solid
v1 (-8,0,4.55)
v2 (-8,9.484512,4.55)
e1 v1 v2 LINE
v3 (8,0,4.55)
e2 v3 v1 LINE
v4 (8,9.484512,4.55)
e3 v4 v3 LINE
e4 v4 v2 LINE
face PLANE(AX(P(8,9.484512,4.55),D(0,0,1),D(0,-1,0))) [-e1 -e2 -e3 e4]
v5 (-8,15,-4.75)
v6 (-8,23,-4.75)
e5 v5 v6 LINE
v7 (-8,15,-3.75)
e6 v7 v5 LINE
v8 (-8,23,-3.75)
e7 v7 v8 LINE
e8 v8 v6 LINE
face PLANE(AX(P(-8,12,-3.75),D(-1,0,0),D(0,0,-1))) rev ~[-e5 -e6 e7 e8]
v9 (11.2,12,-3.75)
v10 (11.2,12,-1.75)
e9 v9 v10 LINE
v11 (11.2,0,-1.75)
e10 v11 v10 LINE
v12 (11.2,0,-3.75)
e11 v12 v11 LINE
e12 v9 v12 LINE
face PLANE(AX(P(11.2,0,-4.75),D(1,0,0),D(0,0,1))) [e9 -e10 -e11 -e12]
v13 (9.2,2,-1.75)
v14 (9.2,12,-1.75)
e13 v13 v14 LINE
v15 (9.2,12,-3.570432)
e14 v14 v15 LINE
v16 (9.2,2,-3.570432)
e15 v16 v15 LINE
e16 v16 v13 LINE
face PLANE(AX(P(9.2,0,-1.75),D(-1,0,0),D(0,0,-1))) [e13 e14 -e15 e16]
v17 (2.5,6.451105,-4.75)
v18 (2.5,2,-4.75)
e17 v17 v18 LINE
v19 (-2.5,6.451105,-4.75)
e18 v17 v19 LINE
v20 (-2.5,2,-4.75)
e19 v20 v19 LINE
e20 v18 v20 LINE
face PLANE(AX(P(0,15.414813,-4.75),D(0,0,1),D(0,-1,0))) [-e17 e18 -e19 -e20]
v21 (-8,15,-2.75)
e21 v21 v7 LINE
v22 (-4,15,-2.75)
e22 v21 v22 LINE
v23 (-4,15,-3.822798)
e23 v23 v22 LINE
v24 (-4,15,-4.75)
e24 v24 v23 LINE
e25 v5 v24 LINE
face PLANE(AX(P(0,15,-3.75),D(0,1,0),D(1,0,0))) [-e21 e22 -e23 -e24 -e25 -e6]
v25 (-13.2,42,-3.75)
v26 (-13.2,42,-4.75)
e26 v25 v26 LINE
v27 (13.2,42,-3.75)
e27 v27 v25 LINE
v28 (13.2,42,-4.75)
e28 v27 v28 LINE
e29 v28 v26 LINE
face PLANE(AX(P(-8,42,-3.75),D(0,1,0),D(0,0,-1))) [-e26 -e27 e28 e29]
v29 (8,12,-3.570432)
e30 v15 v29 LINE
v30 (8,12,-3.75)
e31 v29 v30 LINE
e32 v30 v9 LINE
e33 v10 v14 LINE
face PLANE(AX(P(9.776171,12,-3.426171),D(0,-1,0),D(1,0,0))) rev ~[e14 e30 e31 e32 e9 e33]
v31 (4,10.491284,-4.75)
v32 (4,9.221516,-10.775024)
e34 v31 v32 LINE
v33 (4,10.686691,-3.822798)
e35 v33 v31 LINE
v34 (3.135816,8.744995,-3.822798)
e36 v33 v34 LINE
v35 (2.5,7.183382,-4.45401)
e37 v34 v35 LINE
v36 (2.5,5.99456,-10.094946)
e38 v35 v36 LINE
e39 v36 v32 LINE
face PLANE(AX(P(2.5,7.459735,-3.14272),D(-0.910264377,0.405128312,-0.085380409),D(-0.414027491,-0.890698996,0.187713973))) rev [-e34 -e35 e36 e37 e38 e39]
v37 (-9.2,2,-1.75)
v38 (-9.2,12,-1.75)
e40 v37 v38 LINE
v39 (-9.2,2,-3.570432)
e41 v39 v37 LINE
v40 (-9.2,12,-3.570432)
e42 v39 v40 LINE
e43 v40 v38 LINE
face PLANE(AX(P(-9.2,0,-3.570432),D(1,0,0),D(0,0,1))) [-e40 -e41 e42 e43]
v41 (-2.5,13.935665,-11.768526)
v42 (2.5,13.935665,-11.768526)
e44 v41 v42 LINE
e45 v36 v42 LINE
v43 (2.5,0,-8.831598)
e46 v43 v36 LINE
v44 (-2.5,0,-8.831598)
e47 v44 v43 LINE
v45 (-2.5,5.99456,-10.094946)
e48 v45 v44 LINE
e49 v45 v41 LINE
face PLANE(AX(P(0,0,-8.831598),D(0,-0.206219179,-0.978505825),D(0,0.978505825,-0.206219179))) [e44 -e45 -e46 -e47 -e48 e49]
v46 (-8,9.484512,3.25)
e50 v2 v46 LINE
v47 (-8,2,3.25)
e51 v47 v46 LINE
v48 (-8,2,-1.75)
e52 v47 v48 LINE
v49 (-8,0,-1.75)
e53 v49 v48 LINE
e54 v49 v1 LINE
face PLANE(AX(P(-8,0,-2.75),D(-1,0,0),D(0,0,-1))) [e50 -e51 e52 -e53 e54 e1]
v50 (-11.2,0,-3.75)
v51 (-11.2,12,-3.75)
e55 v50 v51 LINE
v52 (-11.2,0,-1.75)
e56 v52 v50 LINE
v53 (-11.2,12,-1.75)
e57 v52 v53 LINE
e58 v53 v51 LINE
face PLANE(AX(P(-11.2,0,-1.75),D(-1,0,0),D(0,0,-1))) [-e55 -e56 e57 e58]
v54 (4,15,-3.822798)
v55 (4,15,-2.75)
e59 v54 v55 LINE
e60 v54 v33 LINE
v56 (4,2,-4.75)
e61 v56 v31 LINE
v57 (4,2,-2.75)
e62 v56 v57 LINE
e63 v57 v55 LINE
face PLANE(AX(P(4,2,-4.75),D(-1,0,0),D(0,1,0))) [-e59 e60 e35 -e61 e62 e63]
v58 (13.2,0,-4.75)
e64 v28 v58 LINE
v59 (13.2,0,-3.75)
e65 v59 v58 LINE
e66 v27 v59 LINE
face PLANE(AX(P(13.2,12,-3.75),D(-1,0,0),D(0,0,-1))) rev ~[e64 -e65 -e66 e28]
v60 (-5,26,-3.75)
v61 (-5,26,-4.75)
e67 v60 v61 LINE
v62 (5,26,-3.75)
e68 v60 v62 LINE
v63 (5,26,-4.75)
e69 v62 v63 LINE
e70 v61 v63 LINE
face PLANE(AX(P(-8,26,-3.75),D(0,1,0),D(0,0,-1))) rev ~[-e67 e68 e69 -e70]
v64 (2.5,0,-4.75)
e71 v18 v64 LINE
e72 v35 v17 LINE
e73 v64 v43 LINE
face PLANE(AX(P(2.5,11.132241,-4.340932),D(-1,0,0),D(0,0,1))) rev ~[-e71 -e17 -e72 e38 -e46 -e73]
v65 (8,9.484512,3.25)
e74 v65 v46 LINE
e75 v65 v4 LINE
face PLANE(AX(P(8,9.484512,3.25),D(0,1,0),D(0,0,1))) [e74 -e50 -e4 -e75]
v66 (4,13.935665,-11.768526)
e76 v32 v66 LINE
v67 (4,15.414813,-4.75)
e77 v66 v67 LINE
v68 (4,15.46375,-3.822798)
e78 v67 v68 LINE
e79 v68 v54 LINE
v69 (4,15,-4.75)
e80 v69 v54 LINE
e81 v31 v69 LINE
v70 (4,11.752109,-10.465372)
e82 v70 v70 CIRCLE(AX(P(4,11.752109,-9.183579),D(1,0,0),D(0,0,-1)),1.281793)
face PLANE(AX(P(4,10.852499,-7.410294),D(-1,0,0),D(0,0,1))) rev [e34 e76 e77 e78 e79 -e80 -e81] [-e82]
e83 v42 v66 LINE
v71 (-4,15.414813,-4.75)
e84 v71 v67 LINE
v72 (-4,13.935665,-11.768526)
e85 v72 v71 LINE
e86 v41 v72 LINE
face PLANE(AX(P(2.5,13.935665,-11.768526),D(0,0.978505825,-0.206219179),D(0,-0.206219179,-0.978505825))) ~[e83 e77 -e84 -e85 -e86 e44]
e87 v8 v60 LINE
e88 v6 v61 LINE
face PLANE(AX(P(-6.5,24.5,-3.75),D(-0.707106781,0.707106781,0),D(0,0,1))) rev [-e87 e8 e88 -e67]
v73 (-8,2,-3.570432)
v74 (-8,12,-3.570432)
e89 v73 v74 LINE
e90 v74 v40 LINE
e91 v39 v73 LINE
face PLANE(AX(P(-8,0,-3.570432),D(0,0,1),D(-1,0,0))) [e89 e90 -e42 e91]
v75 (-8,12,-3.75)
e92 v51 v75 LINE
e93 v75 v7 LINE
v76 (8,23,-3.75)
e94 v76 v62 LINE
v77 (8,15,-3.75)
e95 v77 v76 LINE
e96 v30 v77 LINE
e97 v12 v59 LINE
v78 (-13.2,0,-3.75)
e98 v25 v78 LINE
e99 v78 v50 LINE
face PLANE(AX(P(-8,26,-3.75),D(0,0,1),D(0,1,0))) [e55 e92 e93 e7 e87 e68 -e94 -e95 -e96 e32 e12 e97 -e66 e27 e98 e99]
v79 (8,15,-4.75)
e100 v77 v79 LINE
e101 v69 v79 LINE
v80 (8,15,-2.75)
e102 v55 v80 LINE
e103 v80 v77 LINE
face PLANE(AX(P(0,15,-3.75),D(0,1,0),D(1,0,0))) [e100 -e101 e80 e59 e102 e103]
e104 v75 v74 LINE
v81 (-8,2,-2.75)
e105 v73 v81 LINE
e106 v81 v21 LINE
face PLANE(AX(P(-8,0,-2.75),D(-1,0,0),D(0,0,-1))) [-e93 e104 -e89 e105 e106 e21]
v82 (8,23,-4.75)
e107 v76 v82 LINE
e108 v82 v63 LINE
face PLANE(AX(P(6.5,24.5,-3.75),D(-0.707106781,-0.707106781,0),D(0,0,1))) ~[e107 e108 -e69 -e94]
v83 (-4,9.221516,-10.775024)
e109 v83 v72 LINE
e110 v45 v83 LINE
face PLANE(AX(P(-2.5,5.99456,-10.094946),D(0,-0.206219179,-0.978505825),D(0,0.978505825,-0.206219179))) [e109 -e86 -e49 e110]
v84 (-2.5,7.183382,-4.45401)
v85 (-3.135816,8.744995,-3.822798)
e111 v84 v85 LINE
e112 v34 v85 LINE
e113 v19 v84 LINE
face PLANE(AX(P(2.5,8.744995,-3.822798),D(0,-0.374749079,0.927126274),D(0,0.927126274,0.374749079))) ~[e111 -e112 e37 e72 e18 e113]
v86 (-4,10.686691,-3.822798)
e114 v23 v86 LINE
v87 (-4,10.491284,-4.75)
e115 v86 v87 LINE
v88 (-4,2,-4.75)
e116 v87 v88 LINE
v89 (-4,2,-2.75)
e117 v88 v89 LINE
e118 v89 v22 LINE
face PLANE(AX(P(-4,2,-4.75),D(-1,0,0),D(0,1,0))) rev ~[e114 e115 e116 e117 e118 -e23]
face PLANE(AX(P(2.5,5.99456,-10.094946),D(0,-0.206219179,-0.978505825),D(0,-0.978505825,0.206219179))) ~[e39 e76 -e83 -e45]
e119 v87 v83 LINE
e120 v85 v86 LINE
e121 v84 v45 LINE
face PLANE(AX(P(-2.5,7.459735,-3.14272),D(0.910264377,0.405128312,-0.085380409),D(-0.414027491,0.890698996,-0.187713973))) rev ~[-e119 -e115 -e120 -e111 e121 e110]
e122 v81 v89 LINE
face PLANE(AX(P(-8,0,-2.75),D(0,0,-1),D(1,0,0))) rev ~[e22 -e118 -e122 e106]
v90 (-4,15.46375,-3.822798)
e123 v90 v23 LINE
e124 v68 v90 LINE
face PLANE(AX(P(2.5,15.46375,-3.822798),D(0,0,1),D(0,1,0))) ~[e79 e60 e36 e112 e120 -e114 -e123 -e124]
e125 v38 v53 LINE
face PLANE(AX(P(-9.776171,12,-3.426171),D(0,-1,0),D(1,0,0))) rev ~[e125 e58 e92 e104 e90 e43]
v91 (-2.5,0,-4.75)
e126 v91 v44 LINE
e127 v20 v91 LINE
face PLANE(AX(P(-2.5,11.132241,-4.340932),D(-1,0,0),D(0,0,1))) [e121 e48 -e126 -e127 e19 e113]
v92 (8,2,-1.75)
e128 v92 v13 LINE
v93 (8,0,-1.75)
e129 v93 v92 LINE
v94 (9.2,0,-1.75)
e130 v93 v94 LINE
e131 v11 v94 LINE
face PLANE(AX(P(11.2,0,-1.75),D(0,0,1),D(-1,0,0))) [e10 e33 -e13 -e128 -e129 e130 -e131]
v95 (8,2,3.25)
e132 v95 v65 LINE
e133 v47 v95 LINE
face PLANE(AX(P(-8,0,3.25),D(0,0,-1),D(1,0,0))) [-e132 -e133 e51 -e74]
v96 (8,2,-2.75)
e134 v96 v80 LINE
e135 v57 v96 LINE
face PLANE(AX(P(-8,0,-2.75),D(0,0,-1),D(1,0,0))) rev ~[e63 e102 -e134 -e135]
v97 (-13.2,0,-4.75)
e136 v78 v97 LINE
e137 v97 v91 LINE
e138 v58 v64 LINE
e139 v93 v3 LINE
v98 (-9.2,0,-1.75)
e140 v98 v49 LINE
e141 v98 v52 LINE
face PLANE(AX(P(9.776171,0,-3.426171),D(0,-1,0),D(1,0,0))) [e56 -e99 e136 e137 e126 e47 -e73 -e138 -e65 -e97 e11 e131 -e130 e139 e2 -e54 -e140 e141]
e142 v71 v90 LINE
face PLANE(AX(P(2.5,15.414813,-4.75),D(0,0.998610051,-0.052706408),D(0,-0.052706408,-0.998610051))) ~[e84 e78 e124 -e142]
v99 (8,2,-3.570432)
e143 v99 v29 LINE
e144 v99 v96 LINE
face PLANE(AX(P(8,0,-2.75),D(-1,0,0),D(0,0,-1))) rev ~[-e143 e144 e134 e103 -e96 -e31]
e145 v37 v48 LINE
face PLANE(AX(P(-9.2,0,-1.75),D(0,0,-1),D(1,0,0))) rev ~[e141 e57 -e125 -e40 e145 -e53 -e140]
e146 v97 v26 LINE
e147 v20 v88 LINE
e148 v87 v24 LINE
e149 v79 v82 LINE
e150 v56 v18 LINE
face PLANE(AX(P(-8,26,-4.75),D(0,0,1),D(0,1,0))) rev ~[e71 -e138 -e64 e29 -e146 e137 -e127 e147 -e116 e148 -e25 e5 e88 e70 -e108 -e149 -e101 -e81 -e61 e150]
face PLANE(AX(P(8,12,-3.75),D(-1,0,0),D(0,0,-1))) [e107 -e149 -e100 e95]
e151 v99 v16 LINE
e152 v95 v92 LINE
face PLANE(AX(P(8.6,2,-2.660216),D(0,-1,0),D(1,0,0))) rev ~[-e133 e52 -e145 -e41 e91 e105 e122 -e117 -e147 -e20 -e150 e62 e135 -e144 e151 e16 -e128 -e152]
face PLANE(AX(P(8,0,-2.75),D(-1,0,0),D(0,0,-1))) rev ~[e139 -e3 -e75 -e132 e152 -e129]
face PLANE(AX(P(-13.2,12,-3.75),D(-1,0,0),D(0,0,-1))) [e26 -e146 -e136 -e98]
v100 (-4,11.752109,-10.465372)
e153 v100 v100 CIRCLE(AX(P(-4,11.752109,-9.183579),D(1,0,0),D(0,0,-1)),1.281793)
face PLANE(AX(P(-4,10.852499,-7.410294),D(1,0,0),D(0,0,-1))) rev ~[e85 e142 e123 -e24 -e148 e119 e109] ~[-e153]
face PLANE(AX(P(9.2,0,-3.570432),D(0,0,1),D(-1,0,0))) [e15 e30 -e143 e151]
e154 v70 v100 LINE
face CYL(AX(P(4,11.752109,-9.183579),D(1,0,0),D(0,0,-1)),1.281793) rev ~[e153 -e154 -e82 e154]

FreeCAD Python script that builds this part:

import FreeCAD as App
import Part
import Sketcher


def edges_at(feature, points):
    """Names of the edges that pass closest to the given points."""
    edges = feature.Shape.Edges
    near = lambda p: min(range(len(edges)), key=lambda i: edges[i].distToShape(Part.Vertex(*p))[0])
    return sorted({f"Edge{near(p) + 1}" for p in points})

doc = App.newDocument("Part")
body = doc.addObject("PartDesign::Body", "Body")

# Sketch on XZ plane
sketch1 = body.newObject("Sketcher::SketchObject", "Sketch")
sketch1.AttachmentSupport = (doc.getObject("XZ_Plane"), [""])
sketch1.MapMode = "FlatFace"
sketch1.addGeometry([
    Part.LineSegment(App.Vector(-8, -3, 0), App.Vector(-8, 3, 0)),
    Part.LineSegment(App.Vector(-8, 3, 0), App.Vector(8, 3, 0)),
    Part.LineSegment(App.Vector(8, 3, 0), App.Vector(8, -3, 0)),
    Part.LineSegment(App.Vector(8, -3, 0), App.Vector(-8, -3, 0)),
], False)
sketch1.addConstraint([
    Sketcher.Constraint("Coincident", 0, 2, 1, 1),
    Sketcher.Constraint("Coincident", 1, 2, 2, 1),
    Sketcher.Constraint("Coincident", 2, 2, 3, 1),
    Sketcher.Constraint("Coincident", 3, 2, 0, 1),
    Sketcher.Constraint("Vertical", 0),
    Sketcher.Constraint("Horizontal", 1),
    Sketcher.Constraint("Vertical", 2),
    Sketcher.Constraint("Horizontal", 3),
    Sketcher.Constraint("DistanceX", 1, 1, 1, 2, 16.0),
    Sketcher.Constraint("DistanceY", 0, 1, 0, 2, 6.0),
    Sketcher.Constraint("DistanceX", 0, 2, -1, 1, 8.0),
    Sketcher.Constraint("DistanceY", -1, 1, 0, 2, 3.25),
])
pad1 = body.newObject("PartDesign::Pad", "Pad")
pad1.Profile = sketch1
pad1.Length = 2
pad1.Reversed = True

# Sketch on XZ plane
sketch2 = body.newObject("Sketcher::SketchObject", "Sketch001")
sketch2.AttachmentSupport = (doc.getObject("XZ_Plane"), [""])
sketch2.MapMode = "FlatFace"
sketch2.addGeometry([
    Part.LineSegment(App.Vector(-8, -4.8, 0), App.Vector(-8, -2.8, 0)),  # 0
    Part.LineSegment(App.Vector(-8, -2.8, 0), App.Vector(8, -2.8, 0)),  # 1
    Part.LineSegment(App.Vector(8, -2.8, 0), App.Vector(8, -4.8, 0)),  # 2
    Part.LineSegment(App.Vector(8, -4.8, 0), App.Vector(-8, -4.8, 0)),  # 3
    Part.LineSegment(App.Vector(-8, 3.2, 0), App.Vector(-8, 4.8, 0)),  # 4
    Part.LineSegment(App.Vector(-8, 4.8, 0), App.Vector(8, 4.8, 0)),  # 5
    Part.LineSegment(App.Vector(8, 4.8, 0), App.Vector(8, 3.2, 0)),  # 6
    Part.LineSegment(App.Vector(8, 3.2, 0), App.Vector(-8, 3.2, 0)),  # 7
], False)
sketch2.addConstraint([
    Sketcher.Constraint("Coincident", 0, 2, 1, 1),
    Sketcher.Constraint("Coincident", 1, 2, 2, 1),
    Sketcher.Constraint("Coincident", 2, 2, 3, 1),
    Sketcher.Constraint("Coincident", 3, 2, 0, 1),
    Sketcher.Constraint("Coincident", 4, 2, 5, 1),
    Sketcher.Constraint("Coincident", 5, 2, 6, 1),
    Sketcher.Constraint("Coincident", 6, 2, 7, 1),
    Sketcher.Constraint("Coincident", 7, 2, 4, 1),
    Sketcher.Constraint("Vertical", 0),
    Sketcher.Constraint("Horizontal", 1),
    Sketcher.Constraint("Vertical", 2),
    Sketcher.Constraint("Horizontal", 3),
    Sketcher.Constraint("Vertical", 4),
    Sketcher.Constraint("Horizontal", 5),
    Sketcher.Constraint("Vertical", 6),
    Sketcher.Constraint("Horizontal", 7),
    Sketcher.Constraint("Symmetric", 2, 2, 4, 2, -1, 1),
    Sketcher.Constraint("Vertical", 3, 2, 4, 2),
    Sketcher.Constraint("Vertical", 2, 2, 5, 2),
    Sketcher.Constraint("DistanceX", 1, 1, 1, 2, 16.0),
    Sketcher.Constraint("DistanceY", 0, 1, 0, 2, 2.0),
    Sketcher.Constraint("DistanceY", 4, 1, 4, 2, 1.5),
    Sketcher.Constraint("DistanceY", 1, 2, 6, 2, 6.0),
])
pad2 = body.newObject("PartDesign::Pad", "Pad001")
pad2.Profile = sketch2
pad2.Length = 15
pad2.Reversed = True

# Sketch on XY plane
sketch3 = body.newObject("Sketcher::SketchObject", "Sketch002")
sketch3.AttachmentSupport = (doc.getObject("XY_Plane"), [""])
sketch3.MapMode = "FlatFace"
sketch3.AttachmentOffset = App.Placement(App.Vector(0, 0, -4.75), App.Rotation())
sketch3.addGeometry([
    Part.LineSegment(App.Vector(4, 28, 0), App.Vector(4, 2, 0)),
    Part.LineSegment(App.Vector(4, 2, 0), App.Vector(-4, 2, 0)),
    Part.LineSegment(App.Vector(-4, 2, 0), App.Vector(-4, 28, 0)),
    Part.LineSegment(App.Vector(-4, 28, 0), App.Vector(4, 28, 0)),
], False)
sketch3.addConstraint([
    Sketcher.Constraint("Coincident", 0, 2, 1, 1),
    Sketcher.Constraint("Coincident", 1, 2, 2, 1),
    Sketcher.Constraint("Coincident", 2, 2, 3, 1),
    Sketcher.Constraint("Coincident", 3, 2, 0, 1),
    Sketcher.Constraint("Vertical", 0),
    Sketcher.Constraint("Horizontal", 1),
    Sketcher.Constraint("Vertical", 2),
    Sketcher.Constraint("Horizontal", 3),
    Sketcher.Constraint("DistanceX", 1, 2, 1, 1, 8.0),
    Sketcher.Constraint("DistanceY", 0, 2, 0, 1, 26.0),
    Sketcher.Constraint("DistanceX", -1, 1, 0, 2, 4.0),
    Sketcher.Constraint("DistanceY", -1, 1, 0, 2, 2.0),
])
pocket1 = body.newObject("PartDesign::Pocket", "Pocket")
pocket1.Profile = sketch3
pocket1.Length = 2
pocket1.Reversed = True

# Sketch on YZ plane
sketch4 = body.newObject("Sketcher::SketchObject", "Sketch003")
sketch4.AttachmentSupport = (doc.getObject("YZ_Plane"), [""])
sketch4.MapMode = "FlatFace"
sketch4.addGeometry([
    Part.LineSegment(App.Vector(0, -4.8, 0), App.Vector(0, -8.8, 0)),
    Part.LineSegment(App.Vector(0, -8.8, 0), App.Vector(13.9, -11.8, 0)),
    Part.LineSegment(App.Vector(13.9, -11.8, 0), App.Vector(15.4, -4.8, 0)),
    Part.LineSegment(App.Vector(15.4, -4.8, 0), App.Vector(0, -4.8, 0)),
], False)
sketch4.addConstraint([
    Sketcher.Constraint("Coincident", 0, 2, 1, 1),
    Sketcher.Constraint("Coincident", 1, 2, 2, 1),
    Sketcher.Constraint("Coincident", 2, 2, 3, 1),
    Sketcher.Constraint("Coincident", 3, 2, 0, 1),
    Sketcher.Constraint("Vertical", 0),
    Sketcher.Constraint("Horizontal", 3),
    Sketcher.Constraint("PointOnObject", 0, 2, -2),
    Sketcher.Constraint("Perpendicular", 1, 2),
    Sketcher.Constraint("DistanceY", 2, 2, -1, 1, 4.75),
    Sketcher.Constraint("Distance", 1, 14.24178),
    Sketcher.Constraint("DistanceX", 3, 2, 3, 1, 15.414813),
    Sketcher.Constraint("DistanceY", 0, 2, 0, 1, 4.081598),
])
pad3 = body.newObject("PartDesign::Pad", "Pad002")
pad3.Profile = sketch4
pad3.Length = 5
pad3.Midplane = True

# Sketch on YZ plane
sketch5 = body.newObject("Sketcher::SketchObject", "Sketch004")
sketch5.AttachmentSupport = (doc.getObject("YZ_Plane"), [""])
sketch5.MapMode = "FlatFace"
sketch5.AttachmentOffset = App.Placement(App.Vector(0, 0, 2.5), App.Rotation())
sketch5.addGeometry([
    Part.LineSegment(App.Vector(8.7, -3.8, 0), App.Vector(6.5, -4.8, 0)),
    Part.LineSegment(App.Vector(6.5, -4.8, 0), App.Vector(15.4, -4.8, 0)),
    Part.LineSegment(App.Vector(15.4, -4.8, 0), App.Vector(15.5, -3.8, 0)),
    Part.LineSegment(App.Vector(15.5, -3.8, 0), App.Vector(8.7, -3.8, 0)),
], False)
sketch5.addConstraint([
    Sketcher.Constraint("Coincident", 0, 2, 1, 1),
    Sketcher.Constraint("Coincident", 1, 2, 2, 1),
    Sketcher.Constraint("Coincident", 2, 2, 3, 1),
    Sketcher.Constraint("Coincident", 3, 2, 0, 1),
    Sketcher.Constraint("Horizontal", 1),
    Sketcher.Constraint("Horizontal", 3),
    Sketcher.Constraint("DistanceY", 0, 2, -1, 1, 4.75),
    Sketcher.Constraint("DistanceY", 2, 2, -1, 1, 3.822798),
    Sketcher.Constraint("DistanceX", 1, 1, 1, 2, 8.963707),
    Sketcher.Constraint("DistanceX", 3, 2, 3, 1, 6.718755),
    Sketcher.Constraint("DistanceX", -1, 1, 2, 2, 15.46375),
    Sketcher.Constraint("DistanceX", 0, 2, 3, 2, 2.29389),
])
pad4 = body.newObject("PartDesign::Pad", "Pad003")
pad4.Profile = sketch5
pad4.Length = 5
pad4.Reversed = True

# Sketch on YZ plane
sketch6 = body.newObject("Sketcher::SketchObject", "Sketch005")
sketch6.AttachmentSupport = (doc.getObject("YZ_Plane"), [""])
sketch6.MapMode = "FlatFace"
sketch6.AttachmentOffset = App.Placement(App.Vector(0, 0, -2.5), App.Rotation())
sketch6.addGeometry([
    Part.LineSegment(App.Vector(6, -10.1, 0), App.Vector(6.5, -4.8, 0)),  # 0
    Part.LineSegment(App.Vector(6.5, -4.8, 0), App.Vector(8.7, -3.8, 0)),  # 1
    Part.LineSegment(App.Vector(8.7, -3.8, 0), App.Vector(15.5, -3.8, 0)),  # 2
    Part.LineSegment(App.Vector(15.5, -3.8, 0), App.Vector(15.4, -4.8, 0)),  # 3
    Part.LineSegment(App.Vector(15.4, -4.8, 0), App.Vector(13.9, -11.8, 0)),  # 4
    Part.LineSegment(App.Vector(13.9, -11.8, 0), App.Vector(6, -10.1, 0)),  # 5
], False)
sketch6.addConstraint([
    Sketcher.Constraint("Coincident", 0, 2, 1, 1),
    Sketcher.Constraint("Coincident", 1, 2, 2, 1),
    Sketcher.Constraint("Coincident", 2, 2, 3, 1),
    Sketcher.Constraint("Coincident", 3, 2, 4, 1),
    Sketcher.Constraint("Coincident", 4, 2, 5, 1),
    Sketcher.Constraint("Coincident", 5, 2, 0, 1),
    Sketcher.Constraint("Horizontal", 2),
    Sketcher.Constraint("Perpendicular", 4, 5),
    Sketcher.Constraint("Horizontal", 0, 2, 3, 2),
    Sketcher.Constraint("DistanceY", 0, 2, -1, 1, 4.75),
    Sketcher.Constraint("DistanceY", 1, 2, -1, 1, 3.822798),
    Sketcher.Constraint("Distance", 0, 5.364408),
    Sketcher.Constraint("Distance", 5, 8.115542),
    Sketcher.Constraint("DistanceX", 2, 1, 2, 2, 6.718755),
    Sketcher.Constraint("DistanceX", -1, 1, 2, 2, 15.46375),
    Sketcher.Constraint("DistanceX", -1, 1, 5, 2, 5.99456),
    Sketcher.Constraint("DistanceX", 0, 2, 1, 2, 2.29389),
    Sketcher.Constraint("DistanceX", 1, 2, 4, 2, 5.19067),
])
pad5 = body.newObject("PartDesign::Pad", "Pad004")
pad5.Profile = sketch6
pad5.Length = 1.5
pad5.Reversed = True

# Sketch on XZ plane
sketch7 = body.newObject("Sketcher::SketchObject", "Sketch006")
sketch7.AttachmentSupport = (doc.getObject("XZ_Plane"), [""])
sketch7.MapMode = "FlatFace"
sketch7.addGeometry([
    Part.LineSegment(App.Vector(8, -1.8, 0), App.Vector(8, -3.6, 0)),  # 0
    Part.LineSegment(App.Vector(8, -3.6, 0), App.Vector(9.2, -3.6, 0)),  # 1
    Part.LineSegment(App.Vector(9.2, -3.6, 0), App.Vector(9.2, -1.8, 0)),  # 2
    Part.LineSegment(App.Vector(9.2, -1.8, 0), App.Vector(8, -1.8, 0)),  # 3
    Part.LineSegment(App.Vector(-9.2, -1.8, 0), App.Vector(-9.2, -3.6, 0)),  # 4
    Part.LineSegment(App.Vector(-9.2, -3.6, 0), App.Vector(-8, -3.6, 0)),  # 5
    Part.LineSegment(App.Vector(-8, -3.6, 0), App.Vector(-8, -1.8, 0)),  # 6
    Part.LineSegment(App.Vector(-8, -1.8, 0), App.Vector(-9.2, -1.8, 0)),  # 7
], False)
sketch7.addConstraint([
    Sketcher.Constraint("Coincident", 0, 2, 1, 1),
    Sketcher.Constraint("Coincident", 1, 2, 2, 1),
    Sketcher.Constraint("Coincident", 2, 2, 3, 1),
    Sketcher.Constraint("Coincident", 3, 2, 0, 1),
    Sketcher.Constraint("Coincident", 4, 2, 5, 1),
    Sketcher.Constraint("Coincident", 5, 2, 6, 1),
    Sketcher.Constraint("Coincident", 6, 2, 7, 1),
    Sketcher.Constraint("Coincident", 7, 2, 4, 1),
    Sketcher.Constraint("Vertical", 0),
    Sketcher.Constraint("Horizontal", 1),
    Sketcher.Constraint("Vertical", 2),
    Sketcher.Constraint("Horizontal", 3),
    Sketcher.Constraint("Vertical", 4),
    Sketcher.Constraint("Horizontal", 5),
    Sketcher.Constraint("Vertical", 6),
    Sketcher.Constraint("Horizontal", 7),
    Sketcher.Constraint("Symmetric", 1, 2, 4, 2, -2),
    Sketcher.Constraint("Symmetric", 3, 2, 6, 2, -2),
    Sketcher.Constraint("DistanceX", 1, 1, 1, 2, 1.2),
    Sketcher.Constraint("DistanceX", -1, 1, 0, 2, 8.0),
    Sketcher.Constraint("DistanceY", 2, 2, -1, 1, 1.75),
    Sketcher.Constraint("DistanceY", 0, 2, 0, 1, 1.820432),
])
pad6 = body.newObject("PartDesign::Pad", "Pad005")
pad6.Profile = sketch7
pad6.Length = 2
pad6.Reversed = True

# Sketch on XZ plane
sketch8 = body.newObject("Sketcher::SketchObject", "Sketch007")
sketch8.AttachmentSupport = (doc.getObject("XZ_Plane"), [""])
sketch8.MapMode = "FlatFace"
sketch8.addGeometry([
    Part.LineSegment(App.Vector(8, -3.6, 0), App.Vector(8, -4.8, 0)),  # 0
    Part.LineSegment(App.Vector(8, -4.8, 0), App.Vector(11.2, -4.8, 0)),  # 1
    Part.LineSegment(App.Vector(11.2, -4.8, 0), App.Vector(11.2, -1.8, 0)),  # 2
    Part.LineSegment(App.Vector(11.2, -1.8, 0), App.Vector(9.2, -1.8, 0)),  # 3
    Part.LineSegment(App.Vector(9.2, -1.8, 0), App.Vector(9.2, -3.6, 0)),  # 4
    Part.LineSegment(App.Vector(9.2, -3.6, 0), App.Vector(8, -3.6, 0)),  # 5
    Part.LineSegment(App.Vector(-8, -4.8, 0), App.Vector(-8, -3.6, 0)),  # 6
    Part.LineSegment(App.Vector(-8, -3.6, 0), App.Vector(-9.2, -3.6, 0)),  # 7
    Part.LineSegment(App.Vector(-9.2, -3.6, 0), App.Vector(-9.2, -1.8, 0)),  # 8
    Part.LineSegment(App.Vector(-9.2, -1.8, 0), App.Vector(-11.2, -1.8, 0)),  # 9
    Part.LineSegment(App.Vector(-11.2, -1.8, 0), App.Vector(-11.2, -4.8, 0)),  # 10
    Part.LineSegment(App.Vector(-11.2, -4.8, 0), App.Vector(-8, -4.8, 0)),  # 11
], False)
sketch8.addConstraint([
    Sketcher.Constraint("Coincident", 0, 2, 1, 1),
    Sketcher.Constraint("Coincident", 1, 2, 2, 1),
    Sketcher.Constraint("Coincident", 2, 2, 3, 1),
    Sketcher.Constraint("Coincident", 3, 2, 4, 1),
    Sketcher.Constraint("Coincident", 4, 2, 5, 1),
    Sketcher.Constraint("Coincident", 5, 2, 0, 1),
    Sketcher.Constraint("Coincident", 6, 2, 7, 1),
    Sketcher.Constraint("Coincident", 7, 2, 8, 1),
    Sketcher.Constraint("Coincident", 8, 2, 9, 1),
    Sketcher.Constraint("Coincident", 9, 2, 10, 1),
    Sketcher.Constraint("Coincident", 10, 2, 11, 1),
    Sketcher.Constraint("Coincident", 11, 2, 6, 1),
    Sketcher.Constraint("Vertical", 0),
    Sketcher.Constraint("Horizontal", 1),
    Sketcher.Constraint("Vertical", 2),
    Sketcher.Constraint("Horizontal", 3),
    Sketcher.Constraint("Vertical", 4),
    Sketcher.Constraint("Horizontal", 5),
    Sketcher.Constraint("Vertical", 6),
    Sketcher.Constraint("Horizontal", 7),
    Sketcher.Constraint("Vertical", 8),
    Sketcher.Constraint("Horizontal", 9),
    Sketcher.Constraint("Vertical", 10),
    Sketcher.Constraint("Horizontal", 11),
    Sketcher.Constraint("Symmetric", 5, 2, 6, 2, -2),
    Sketcher.Constraint("Symmetric", 3, 2, 8, 2, -2),
    Sketcher.Constraint("Symmetric", 1, 2, 10, 2, -2),
    Sketcher.Constraint("DistanceX", 3, 2, 3, 1, 2.0),
    Sketcher.Constraint("DistanceY", 2, 1, 2, 2, 3.0),
    Sketcher.Constraint("DistanceX", 1, 1, 1, 2, 3.2),
    Sketcher.Constraint("DistanceX", -1, 1, 0, 2, 8.0),
    Sketcher.Constraint("DistanceY", 0, 2, -1, 1, 4.75),
    Sketcher.Constraint("DistanceY", 0, 2, 0, 1, 1.179568),
])
pad7 = body.newObject("PartDesign::Pad", "Pad006")
pad7.Profile = sketch8
pad7.Length = 12
pad7.Reversed = True

# Sketch on an angled plane
sketch9 = body.newObject("Sketcher::SketchObject", "Sketch008")
sketch9.Placement = App.Placement(App.Vector(0, -0.316924, -1.503797), App.Rotation(App.Vector(-1, 0, 0), App.Vector(0, 0.978505825, -0.206219179), App.Vector(0, -0.206219179, -0.978505825), "ZXY"))
sketch9.addGeometry([
    Part.LineSegment(App.Vector(4, 11.2, 0), App.Vector(2.5, 7.9, 0)),
    Part.LineSegment(App.Vector(2.5, 7.9, 0), App.Vector(2.5, 5.8, 0)),
    Part.LineSegment(App.Vector(2.5, 5.8, 0), App.Vector(4, 5.8, 0)),
    Part.LineSegment(App.Vector(4, 5.8, 0), App.Vector(4, 11.2, 0)),
], False)
sketch9.addConstraint([
    Sketcher.Constraint("Coincident", 0, 2, 1, 1),
    Sketcher.Constraint("Coincident", 1, 2, 2, 1),
    Sketcher.Constraint("Coincident", 2, 2, 3, 1),
    Sketcher.Constraint("Coincident", 3, 2, 0, 1),
    Sketcher.Constraint("Vertical", 1),
    Sketcher.Constraint("Horizontal", 2),
    Sketcher.Constraint("Vertical", 3),
    Sketcher.Constraint("DistanceX", 2, 1, 2, 2, 1.5),
    Sketcher.Constraint("DistanceX", -1, 1, 2, 2, 4.0),
    Sketcher.Constraint("DistanceY", 1, 2, 1, 1, 2.13244),
    Sketcher.Constraint("DistanceY", 3, 1, 3, 2, 5.43028),
    Sketcher.Constraint("DistanceY", -1, 1, 0, 2, 7.947484),
])
pocket2 = body.newObject("PartDesign::Pocket", "Pocket001")
pocket2.Profile = sketch9
pocket2.Length = 7.10494
pocket2.Reversed = True
doc.recompute()

mirrored = body.newObject("PartDesign::Mirrored", "Mirrored")
mirrored.Originals = [pad5, pocket2]
mirrored.MirrorPlane = (doc.getObject("YZ_Plane"), [""])
body.Tip = mirrored

# Sketch on YZ plane
sketch10 = body.newObject("Sketcher::SketchObject", "Sketch009")
sketch10.AttachmentSupport = (doc.getObject("YZ_Plane"), [""])
sketch10.MapMode = "FlatFace"
sketch10.AttachmentOffset = App.Placement(App.Vector(0, 0, 4), App.Rotation())
sketch10.addGeometry(Part.Circle(App.Vector(11.8, -9.2, 0), App.Vector(0, 0, 1), 1.3), False)
sketch10.addConstraint([
    Sketcher.Constraint("Diameter", 0, 2.563587),
    Sketcher.Constraint("DistanceX", -1, 1, 0, 3, 11.752109),
    Sketcher.Constraint("DistanceY", 0, 3, -1, 1, 9.183579),
])
pocket3 = body.newObject("PartDesign::Pocket", "Pocket002")
pocket3.Profile = sketch10
pocket3.Length = 10

# Sketch on YZ plane
sketch11 = body.newObject("Sketcher::SketchObject", "Sketch010")
sketch11.AttachmentSupport = (doc.getObject("YZ_Plane"), [""])
sketch11.MapMode = "FlatFace"
sketch11.AttachmentOffset = App.Placement(App.Vector(0, 0, 8), App.Rotation())
sketch11.addGeometry([
    Part.LineSegment(App.Vector(9.48, 4.55, 0), App.Vector(9.48, 3.25, 0)),  # 0
    Part.LineSegment(App.Vector(9.48, 3.25, 0), App.Vector(15, 3.25, 0)),  # 1
    Part.LineSegment(App.Vector(15, 3.25, 0), App.Vector(15, 4.75, 0)),  # 2
    Part.LineSegment(App.Vector(15, 4.75, 0), App.Vector(0, 4.75, 0)),  # 3
    Part.LineSegment(App.Vector(0, 4.75, 0), App.Vector(0, 4.55, 0)),  # 4
    Part.LineSegment(App.Vector(0, 4.55, 0), App.Vector(9.48, 4.55, 0)),  # 5
], False)
sketch11.addConstraint([
    Sketcher.Constraint("Coincident", 0, 2, 1, 1),
    Sketcher.Constraint("Coincident", 1, 2, 2, 1),
    Sketcher.Constraint("Coincident", 2, 2, 3, 1),
    Sketcher.Constraint("Coincident", 3, 2, 4, 1),
    Sketcher.Constraint("Coincident", 4, 2, 5, 1),
    Sketcher.Constraint("Coincident", 5, 2, 0, 1),
    Sketcher.Constraint("Vertical", 0),
    Sketcher.Constraint("Horizontal", 1),
    Sketcher.Constraint("Vertical", 2),
    Sketcher.Constraint("Horizontal", 3),
    Sketcher.Constraint("Vertical", 4),
    Sketcher.Constraint("Horizontal", 5),
    Sketcher.Constraint("PointOnObject", 3, 2, -2),
    Sketcher.Constraint("DistanceX", 3, 2, 3, 1, 15.0),
    Sketcher.Constraint("DistanceY", 0, 2, 0, 1, 1.3),
    Sketcher.Constraint("DistanceY", 2, 1, 2, 2, 1.5),
    Sketcher.Constraint("DistanceY", -1, 1, 0, 2, 3.25),
    Sketcher.Constraint("DistanceX", 1, 1, 1, 2, 5.515488),
])
pocket4 = body.newObject("PartDesign::Pocket", "Pocket003")
pocket4.Profile = sketch11
pocket4.Type = "ThroughAll"

# Sketch on XZ plane
sketch12 = body.newObject("Sketcher::SketchObject", "Sketch011")
sketch12.AttachmentSupport = (doc.getObject("XZ_Plane"), [""])
sketch12.MapMode = "FlatFace"
sketch12.AttachmentOffset = App.Placement(App.Vector(0, 0, -12), App.Rotation())
sketch12.addGeometry([
    Part.LineSegment(App.Vector(8, -4.8, 0), App.Vector(8, -3.8, 0)),  # 0
    Part.LineSegment(App.Vector(8, -3.8, 0), App.Vector(13.2, -3.8, 0)),  # 1
    Part.LineSegment(App.Vector(13.2, -3.8, 0), App.Vector(13.2, -4.8, 0)),  # 2
    Part.LineSegment(App.Vector(13.2, -4.8, 0), App.Vector(8, -4.8, 0)),  # 3
    Part.LineSegment(App.Vector(-13.2, -4.8, 0), App.Vector(-13.2, -3.8, 0)),  # 4
    Part.LineSegment(App.Vector(-13.2, -3.8, 0), App.Vector(-8, -3.8, 0)),  # 5
    Part.LineSegment(App.Vector(-8, -3.8, 0), App.Vector(-8, -4.8, 0)),  # 6
    Part.LineSegment(App.Vector(-8, -4.8, 0), App.Vector(-13.2, -4.8, 0)),  # 7
], False)
sketch12.addConstraint([
    Sketcher.Constraint("Coincident", 0, 2, 1, 1),
    Sketcher.Constraint("Coincident", 1, 2, 2, 1),
    Sketcher.Constraint("Coincident", 2, 2, 3, 1),
    Sketcher.Constraint("Coincident", 3, 2, 0, 1),
    Sketcher.Constraint("Coincident", 4, 2, 5, 1),
    Sketcher.Constraint("Coincident", 5, 2, 6, 1),
    Sketcher.Constraint("Coincident", 6, 2, 7, 1),
    Sketcher.Constraint("Coincident", 7, 2, 4, 1),
    Sketcher.Constraint("Vertical", 0),
    Sketcher.Constraint("Horizontal", 1),
    Sketcher.Constraint("Vertical", 2),
    Sketcher.Constraint("Horizontal", 3),
    Sketcher.Constraint("Vertical", 4),
    Sketcher.Constraint("Horizontal", 5),
    Sketcher.Constraint("Vertical", 6),
    Sketcher.Constraint("Horizontal", 7),
    Sketcher.Constraint("Symmetric", 1, 2, 4, 2, -2),
    Sketcher.Constraint("Symmetric", 3, 2, 6, 2, -2),
    Sketcher.Constraint("DistanceY", 0, 1, 0, 2, 1.0),
    Sketcher.Constraint("DistanceX", 1, 1, 1, 2, 5.2),
    Sketcher.Constraint("DistanceX", -1, 1, 0, 2, 8.0),
    Sketcher.Constraint("DistanceY", 0, 2, -1, 1, 3.75),
])
pad8 = body.newObject("PartDesign::Pad", "Pad007")
pad8.Profile = sketch12
pad8.Length = 30
pad8.Reversed = True

# Sketch on XZ plane
sketch13 = body.newObject("Sketcher::SketchObject", "Sketch012")
sketch13.AttachmentSupport = (doc.getObject("XZ_Plane"), [""])
sketch13.MapMode = "FlatFace"
sketch13.AttachmentOffset = App.Placement(App.Vector(0, 0, -12), App.Rotation())
sketch13.addGeometry([
    Part.LineSegment(App.Vector(8, -4.8, 0), App.Vector(8, -3.8, 0)),  # 0
    Part.LineSegment(App.Vector(8, -3.8, 0), App.Vector(13.2, -3.8, 0)),  # 1
    Part.LineSegment(App.Vector(13.2, -3.8, 0), App.Vector(13.2, -4.8, 0)),  # 2
    Part.LineSegment(App.Vector(13.2, -4.8, 0), App.Vector(8, -4.8, 0)),  # 3
    Part.LineSegment(App.Vector(-13.2, -4.8, 0), App.Vector(-13.2, -3.8, 0)),  # 4
    Part.LineSegment(App.Vector(-13.2, -3.8, 0), App.Vector(-8, -3.8, 0)),  # 5
    Part.LineSegment(App.Vector(-8, -3.8, 0), App.Vector(-8, -4.8, 0)),  # 6
    Part.LineSegment(App.Vector(-8, -4.8, 0), App.Vector(-13.2, -4.8, 0)),  # 7
], False)
sketch13.addConstraint([
    Sketcher.Constraint("Coincident", 0, 2, 1, 1),
    Sketcher.Constraint("Coincident", 1, 2, 2, 1),
    Sketcher.Constraint("Coincident", 2, 2, 3, 1),
    Sketcher.Constraint("Coincident", 3, 2, 0, 1),
    Sketcher.Constraint("Coincident", 4, 2, 5, 1),
    Sketcher.Constraint("Coincident", 5, 2, 6, 1),
    Sketcher.Constraint("Coincident", 6, 2, 7, 1),
    Sketcher.Constraint("Coincident", 7, 2, 4, 1),
    Sketcher.Constraint("Vertical", 0),
    Sketcher.Constraint("Horizontal", 1),
    Sketcher.Constraint("Vertical", 2),
    Sketcher.Constraint("Horizontal", 3),
    Sketcher.Constraint("Vertical", 4),
    Sketcher.Constraint("Horizontal", 5),
    Sketcher.Constraint("Vertical", 6),
    Sketcher.Constraint("Horizontal", 7),
    Sketcher.Constraint("Symmetric", 1, 2, 4, 2, -2),
    Sketcher.Constraint("Symmetric", 3, 2, 6, 2, -2),
    Sketcher.Constraint("DistanceY", 0, 1, 0, 2, 1.0),
    Sketcher.Constraint("DistanceX", 1, 1, 1, 2, 5.2),
    Sketcher.Constraint("DistanceX", -1, 1, 0, 2, 8.0),
    Sketcher.Constraint("DistanceY", 0, 2, -1, 1, 3.75),
])
pad9 = body.newObject("PartDesign::Pad", "Pad008")
pad9.Profile = sketch13
pad9.Length = 12

# Sketch on YZ plane
sketch14 = body.newObject("Sketcher::SketchObject", "Sketch013")
sketch14.AttachmentSupport = (doc.getObject("YZ_Plane"), [""])
sketch14.MapMode = "FlatFace"
sketch14.AttachmentOffset = App.Placement(App.Vector(0, 0, -8), App.Rotation())
sketch14.addGeometry([
    Part.LineSegment(App.Vector(42, -3.8, 0), App.Vector(26, -3.8, 0)),
    Part.LineSegment(App.Vector(26, -3.8, 0), App.Vector(26, -4.8, 0)),
    Part.LineSegment(App.Vector(26, -4.8, 0), App.Vector(42, -4.8, 0)),
    Part.LineSegment(App.Vector(42, -4.8, 0), App.Vector(42, -3.8, 0)),
], False)
sketch14.addConstraint([
    Sketcher.Constraint("Coincident", 0, 2, 1, 1),
    Sketcher.Constraint("Coincident", 1, 2, 2, 1),
    Sketcher.Constraint("Coincident", 2, 2, 3, 1),
    Sketcher.Constraint("Coincident", 3, 2, 0, 1),
    Sketcher.Constraint("Horizontal", 0),
    Sketcher.Constraint("Vertical", 1),
    Sketcher.Constraint("Horizontal", 2),
    Sketcher.Constraint("Vertical", 3),
    Sketcher.Constraint("DistanceX", 0, 2, 0, 1, 16.0),
    Sketcher.Constraint("DistanceY", 1, 2, 1, 1, 1.0),
    Sketcher.Constraint("DistanceX", -1, 1, 0, 2, 26.0),
    Sketcher.Constraint("DistanceY", 0, 2, -1, 1, 3.75),
])
pad10 = body.newObject("PartDesign::Pad", "Pad009")
pad10.Profile = sketch14
pad10.Length = 16
doc.recompute()

chamfer = body.newObject("PartDesign::Chamfer", "Chamfer")
chamfer.Base = (pad10, edges_at(pad10, [(-8, 26, -4.25), (8, 26, -4.25)]))
chamfer.Size = 3

doc.recompute()
